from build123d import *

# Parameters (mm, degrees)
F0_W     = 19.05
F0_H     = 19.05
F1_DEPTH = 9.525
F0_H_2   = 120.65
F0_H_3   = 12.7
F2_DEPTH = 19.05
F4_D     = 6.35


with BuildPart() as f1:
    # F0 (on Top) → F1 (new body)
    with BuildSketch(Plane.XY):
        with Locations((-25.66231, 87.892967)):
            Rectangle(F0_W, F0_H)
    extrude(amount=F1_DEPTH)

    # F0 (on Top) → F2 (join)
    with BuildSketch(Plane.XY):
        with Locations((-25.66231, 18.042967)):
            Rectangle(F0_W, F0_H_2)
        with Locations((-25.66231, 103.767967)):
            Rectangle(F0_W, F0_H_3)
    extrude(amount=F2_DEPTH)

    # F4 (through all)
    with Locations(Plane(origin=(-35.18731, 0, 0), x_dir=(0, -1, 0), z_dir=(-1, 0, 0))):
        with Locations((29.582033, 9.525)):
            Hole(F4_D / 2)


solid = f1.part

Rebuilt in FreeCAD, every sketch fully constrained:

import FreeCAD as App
import Part
import Sketcher

V = App.Vector
Q = App.Units.Quantity

doc = App.newDocument("Part")
params = doc.addObject("Spreadsheet::Sheet", "Params")
for row, (alias, value) in enumerate([
    ("sketch1_width", "0.75 in"),
    ("pad1_length", "0.375 in"),
    ("sketch2_height", "0.5 in"),
    ("sketch2_width", "0.75 in"),
    ("sketch2_height2", "4.75 in"),
    ("pad2_length", "0.75 in"),
    ("sketch3_diameter", "0.25 in"),
    ("hole_diameter", "0.25 in"),
], start=1):
    params.set(f"A{row}", alias)
    params.set(f"B{row}", "=" + value)
    params.setAlias(f"B{row}", alias)

body = doc.addObject("PartDesign::Body", "Body")

sketch1 = doc.addObject("Sketcher::SketchObject", "Sketch")
body.addObject(sketch1)
sketch1.AttachmentSupport = (doc.XY_Plane, [""])
sketch1.MapMode = "FlatFace"
sketch1.addGeometry([
    Part.LineSegment(V(-35, 97, 0), V(-35, 78, 0)),
    Part.LineSegment(V(-35, 78, 0), V(-16, 78, 0)),
    Part.LineSegment(V(-16, 78, 0), V(-16, 97, 0)),
    Part.LineSegment(V(-16, 97, 0), V(-35, 97, 0)),
], False)
sketch1.addConstraint([
    Sketcher.Constraint("Coincident", 0, 2, 1, 1),
    Sketcher.Constraint("Coincident", 1, 2, 2, 1),
    Sketcher.Constraint("Coincident", 2, 2, 3, 1),
    Sketcher.Constraint("Coincident", 3, 2, 0, 1),
    Sketcher.Constraint("Vertical", 0),
    Sketcher.Constraint("Horizontal", 1),
    Sketcher.Constraint("Vertical", 2),
    Sketcher.Constraint("Horizontal", 3),
    Sketcher.Constraint("Equal", 3, 0),
    Sketcher.Constraint("DistanceX", 1, 1, 1, 2, Q("0.75 in")),
    Sketcher.Constraint("DistanceX", 0, 2, -1, 1, Q("35.18731 mm")),
    Sketcher.Constraint("DistanceY", -1, 1, 0, 2, Q("78.367967 mm")),
])
sketch1.setExpression("Constraints[9]", "Params.sketch1_width")
pad1 = doc.addObject("PartDesign::Pad", "Pad")
body.addObject(pad1)
pad1.Profile = sketch1
pad1.setExpression("Length", "Params.pad1_length")

sketch2 = doc.addObject("Sketcher::SketchObject", "Sketch001")
body.addObject(sketch2)
sketch2.AttachmentSupport = (doc.XY_Plane, [""])
sketch2.MapMode = "FlatFace"
sketch2.addGeometry([
    Part.LineSegment(V(-35, 78, 0), V(-35, -42, 0)),
    Part.LineSegment(V(-35, -42, 0), V(-16, -42, 0)),
    Part.LineSegment(V(-16, -42, 0), V(-16, 78, 0)),
    Part.LineSegment(V(-16, 78, 0), V(-35, 78, 0)),
    Part.LineSegment(V(-35, 110, 0), V(-35, 97, 0)),
    Part.LineSegment(V(-35, 97, 0), V(-16, 97, 0)),
    Part.LineSegment(V(-16, 97, 0), V(-16, 110, 0)),
    Part.LineSegment(V(-16, 110, 0), V(-35, 110, 0)),
], False)
sketch2.addConstraint([
    Sketcher.Constraint("Coincident", 0, 2, 1, 1),
    Sketcher.Constraint("Coincident", 1, 2, 2, 1),
    Sketcher.Constraint("Coincident", 2, 2, 3, 1),
    Sketcher.Constraint("Coincident", 3, 2, 0, 1),
    Sketcher.Constraint("Coincident", 4, 2, 5, 1),
    Sketcher.Constraint("Coincident", 5, 2, 6, 1),
    Sketcher.Constraint("Coincident", 6, 2, 7, 1),
    Sketcher.Constraint("Coincident", 7, 2, 4, 1),
    Sketcher.Constraint("Vertical", 0),
    Sketcher.Constraint("Horizontal", 1),
    Sketcher.Constraint("Vertical", 2),
    Sketcher.Constraint("Horizontal", 3),
    Sketcher.Constraint("Vertical", 4),
    Sketcher.Constraint("Horizontal", 5),
    Sketcher.Constraint("Vertical", 6),
    Sketcher.Constraint("Horizontal", 7),
    Sketcher.Constraint("Vertical", 3, 2, 4, 2),
    Sketcher.Constraint("Vertical", 2, 2, 5, 2),
    Sketcher.Constraint("DistanceY", 4, 2, 4, 1, Q("0.5 in")),
    Sketcher.Constraint("DistanceY", 1, 2, 6, 2, Q("6 in")),
    Sketcher.Constraint("DistanceX", 1, 1, 1, 2, Q("0.75 in")),
    Sketcher.Constraint("DistanceY", 0, 2, 0, 1, Q("4.75 in")),
    Sketcher.Constraint("DistanceX", 0, 2, -1, 1, Q("35.18731 mm")),
    Sketcher.Constraint("DistanceY", 0, 2, -1, 1, Q("42.282033 mm")),
])
sketch2.setExpression("Constraints[18]", "Params.sketch2_height")
sketch2.setExpression("Constraints[20]", "Params.sketch2_width")
sketch2.setExpression("Constraints[21]", "Params.sketch2_height2")
pad2 = doc.addObject("PartDesign::Pad", "Pad001")
body.addObject(pad2)
pad2.Profile = sketch2
pad2.setExpression("Length", "Params.pad2_length")

sketch3 = doc.addObject("Sketcher::SketchObject", "Sketch002")
body.addObject(sketch3)
sketch3.AttachmentSupport = (doc.YZ_Plane, [""])
sketch3.MapMode = "FlatFace"
sketch3.AttachmentOffset = App.Placement(V(0, 0, -35.18731), App.Rotation())
sketch3.addGeometry(Part.Circle(V(-29.6, 9.5, 0), V(0, 0, 1), 3.2), False)
sketch3.addConstraint([
    Sketcher.Constraint("Diameter", 0, Q("0.25 in")),
    Sketcher.Constraint("DistanceY", -1, 1, 0, 3, Q("0.375 in")),
    Sketcher.Constraint("DistanceX", 0, 3, -1, 1, Q("29.582033 mm")),
])
sketch3.setExpression("Constraints[0]", "Params.sketch3_diameter")
doc.recompute()
hole = doc.addObject("PartDesign::Hole", "Hole")
body.addObject(hole)
hole.Profile = sketch3
hole.ThreadType = "None"
hole.setExpression("Diameter", "Params.hole_diameter")
hole.DepthType = "ThroughAll"
hole.Reversed = True

doc.recompute()
